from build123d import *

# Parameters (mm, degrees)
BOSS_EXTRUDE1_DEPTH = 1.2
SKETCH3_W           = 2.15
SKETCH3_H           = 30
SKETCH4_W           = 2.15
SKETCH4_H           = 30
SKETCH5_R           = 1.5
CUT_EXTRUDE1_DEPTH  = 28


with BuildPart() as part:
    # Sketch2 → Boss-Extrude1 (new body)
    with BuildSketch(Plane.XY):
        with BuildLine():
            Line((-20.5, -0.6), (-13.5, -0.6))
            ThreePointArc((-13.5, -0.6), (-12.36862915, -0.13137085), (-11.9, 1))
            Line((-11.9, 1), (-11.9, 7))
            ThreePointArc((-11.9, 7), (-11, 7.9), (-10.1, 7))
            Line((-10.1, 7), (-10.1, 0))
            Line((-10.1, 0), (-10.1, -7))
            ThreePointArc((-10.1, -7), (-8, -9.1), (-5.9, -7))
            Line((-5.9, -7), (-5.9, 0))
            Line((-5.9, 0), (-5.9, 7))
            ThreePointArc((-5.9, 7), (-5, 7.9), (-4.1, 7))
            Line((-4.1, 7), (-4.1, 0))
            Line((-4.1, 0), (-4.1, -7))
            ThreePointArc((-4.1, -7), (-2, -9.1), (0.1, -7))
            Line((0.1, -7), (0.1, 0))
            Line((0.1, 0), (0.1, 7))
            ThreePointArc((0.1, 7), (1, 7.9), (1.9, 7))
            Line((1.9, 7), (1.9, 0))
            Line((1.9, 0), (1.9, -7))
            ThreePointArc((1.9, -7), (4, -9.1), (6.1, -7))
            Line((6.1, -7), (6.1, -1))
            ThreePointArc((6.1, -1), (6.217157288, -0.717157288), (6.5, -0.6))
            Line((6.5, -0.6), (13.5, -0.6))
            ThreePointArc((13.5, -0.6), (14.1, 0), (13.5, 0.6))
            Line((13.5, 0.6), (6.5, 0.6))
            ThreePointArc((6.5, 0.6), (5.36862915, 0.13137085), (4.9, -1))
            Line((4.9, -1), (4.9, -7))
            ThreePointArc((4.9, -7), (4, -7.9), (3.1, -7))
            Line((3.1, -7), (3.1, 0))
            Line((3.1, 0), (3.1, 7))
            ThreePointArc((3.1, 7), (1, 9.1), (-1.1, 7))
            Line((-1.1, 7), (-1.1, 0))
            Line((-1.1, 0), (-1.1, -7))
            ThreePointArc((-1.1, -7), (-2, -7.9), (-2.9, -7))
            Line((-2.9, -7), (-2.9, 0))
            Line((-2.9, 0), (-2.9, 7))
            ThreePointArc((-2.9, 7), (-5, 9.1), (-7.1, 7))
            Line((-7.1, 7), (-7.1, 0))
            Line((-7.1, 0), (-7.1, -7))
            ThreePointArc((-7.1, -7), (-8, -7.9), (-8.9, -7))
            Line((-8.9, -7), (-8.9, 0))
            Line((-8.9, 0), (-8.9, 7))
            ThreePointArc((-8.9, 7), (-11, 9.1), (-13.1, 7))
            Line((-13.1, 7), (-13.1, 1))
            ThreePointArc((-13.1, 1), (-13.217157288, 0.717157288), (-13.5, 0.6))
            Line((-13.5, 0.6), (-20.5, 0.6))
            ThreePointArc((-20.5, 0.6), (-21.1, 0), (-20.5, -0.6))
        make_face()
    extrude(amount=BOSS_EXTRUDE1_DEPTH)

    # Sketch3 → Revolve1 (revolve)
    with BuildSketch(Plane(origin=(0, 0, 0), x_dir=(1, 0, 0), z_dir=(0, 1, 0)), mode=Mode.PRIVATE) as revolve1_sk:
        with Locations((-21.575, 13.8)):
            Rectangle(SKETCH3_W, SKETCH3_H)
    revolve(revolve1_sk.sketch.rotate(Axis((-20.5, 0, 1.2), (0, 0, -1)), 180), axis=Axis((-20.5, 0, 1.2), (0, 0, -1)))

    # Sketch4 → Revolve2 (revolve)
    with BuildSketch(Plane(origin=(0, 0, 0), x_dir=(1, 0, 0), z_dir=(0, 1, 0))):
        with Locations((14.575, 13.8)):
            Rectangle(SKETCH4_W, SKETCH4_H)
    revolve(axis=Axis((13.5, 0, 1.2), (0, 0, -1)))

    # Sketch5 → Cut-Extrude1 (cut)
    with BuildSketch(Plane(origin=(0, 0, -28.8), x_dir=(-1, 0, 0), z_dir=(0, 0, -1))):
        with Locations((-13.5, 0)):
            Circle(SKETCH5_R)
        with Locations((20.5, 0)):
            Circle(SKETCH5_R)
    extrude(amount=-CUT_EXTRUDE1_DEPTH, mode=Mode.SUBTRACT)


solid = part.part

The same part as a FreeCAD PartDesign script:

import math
import FreeCAD as App
import Part
import Sketcher
from FreeCAD import Vector


def add_polygon(sketch, points):
    """Adds a closed chain of lines whose ends are joined by coincident constraints."""
    first, n = sketch.GeometryCount, len(points)
    for a, b in zip(points, points[1:] + points[:1]):
        sketch.addGeometry(Part.LineSegment(App.Vector(*a, 0), App.Vector(*b, 0)), False)
    for i in range(n):
        sketch.addConstraint(Sketcher.Constraint("Coincident", first + i, 2, first + (i + 1) % n, 1))

doc = App.newDocument("Part")
params = doc.addObject("Spreadsheet::Sheet", "Params")
for row, (alias, value) in enumerate([
    ("sketch1_radius", "1.6 mm"),
    ("sketch1_radius2", "0.9 mm"),
    ("sketch1_radius3", "2.1 mm"),
    ("sketch1_width", "7 mm"),
    ("sketch1_height", "6 mm"),
    ("pad1_length", "1.2 mm"),
    ("sketch2_height", "30 mm"),
    ("sketch2_width", "2.15 mm"),
    ("revolution_angle", "360 deg"),
    ("sketch3_height", "30 mm"),
    ("sketch3_width", "2.15 mm"),
    ("revolution2_angle", "360 deg"),
    ("sketch4_diameter", "3 mm"),
    ("pocket1_length", "28 mm"),
], start=1):
    params.set(f"A{row}", alias)
    params.set(f"B{row}", "=" + value)
    params.setAlias(f"B{row}", alias)

body = doc.addObject("PartDesign::Body", "Body")

# Sketch on XY plane
sketch1 = body.newObject("Sketcher::SketchObject", "Sketch")
sketch1.AttachmentSupport = (doc.getObject("XY_Plane"), [""])
sketch1.MapMode = "FlatFace"
sketch1.addGeometry([
    Part.LineSegment(Vector(-20.5, -0.6, 0), Vector(-13.5, -0.6, 0)),  # 0
    Part.ArcOfCircle(Part.Circle(Vector(-13.5, 1, 0), Vector(0, 0, 1), 1.6), math.radians(-90), math.radians(0)),  # 1
    Part.LineSegment(Vector(-11.9, 1, 0), Vector(-11.9, 7, 0)),  # 2
    Part.ArcOfCircle(Part.Circle(Vector(-11, 7, 0), Vector(0, 0, 1), 0.9), math.radians(0), math.radians(180)),  # 3
    Part.LineSegment(Vector(-10.1, 7, 0), Vector(-10.1, -7, 0)),  # 4
    Part.ArcOfCircle(Part.Circle(Vector(-8, -7, 0), Vector(0, 0, 1), 2.1), math.radians(180), math.radians(360)),  # 5
    Part.LineSegment(Vector(-5.9, -7, 0), Vector(-5.9, 7, 0)),  # 6
    Part.ArcOfCircle(Part.Circle(Vector(-5, 7, 0), Vector(0, 0, 1), 0.9), math.radians(0), math.radians(180)),  # 7
    Part.LineSegment(Vector(-4.1, 7, 0), Vector(-4.1, -7, 0)),  # 8
    Part.ArcOfCircle(Part.Circle(Vector(-2, -7, 0), Vector(0, 0, 1), 2.1), math.radians(180), math.radians(360)),  # 9
    Part.LineSegment(Vector(0.1, -7, 0), Vector(0.1, 7, 0)),  # 10
    Part.ArcOfCircle(Part.Circle(Vector(1, 7, 0), Vector(0, 0, 1), 0.9), math.radians(0), math.radians(180)),  # 11
    Part.LineSegment(Vector(1.9, 7, 0), Vector(1.9, -7, 0)),  # 12
    Part.ArcOfCircle(Part.Circle(Vector(4, -7, 0), Vector(0, 0, 1), 2.1), math.radians(180), math.radians(360)),  # 13
    Part.LineSegment(Vector(6.1, -7, 0), Vector(6.1, -1, 0)),  # 14
    Part.ArcOfCircle(Part.Circle(Vector(6.5, -1, 0), Vector(0, 0, 1), 0.4), math.radians(90), math.radians(180)),  # 15
    Part.LineSegment(Vector(6.5, -0.6, 0), Vector(13.5, -0.6, 0)),  # 16
    Part.ArcOfCircle(Part.Circle(Vector(13.5, 0, 0), Vector(0, 0, 1), 0.6), math.radians(-90), math.radians(90)),  # 17
    Part.LineSegment(Vector(13.5, 0.6, 0), Vector(6.5, 0.6, 0)),  # 18
    Part.ArcOfCircle(Part.Circle(Vector(6.5, -1, 0), Vector(0, 0, 1), 1.6), math.radians(90), math.radians(180)),  # 19
    Part.LineSegment(Vector(4.9, -1, 0), Vector(4.9, -7, 0)),  # 20
    Part.ArcOfCircle(Part.Circle(Vector(4, -7, 0), Vector(0, 0, 1), 0.9), math.radians(180), math.radians(360)),  # 21
    Part.LineSegment(Vector(3.1, -7, 0), Vector(3.1, 7, 0)),  # 22
    Part.ArcOfCircle(Part.Circle(Vector(1, 7, 0), Vector(0, 0, 1), 2.1), math.radians(0), math.radians(180)),  # 23
    Part.LineSegment(Vector(-1.1, 7, 0), Vector(-1.1, -7, 0)),  # 24
    Part.ArcOfCircle(Part.Circle(Vector(-2, -7, 0), Vector(0, 0, 1), 0.9), math.radians(180), math.radians(360)),  # 25
    Part.LineSegment(Vector(-2.9, -7, 0), Vector(-2.9, 7, 0)),  # 26
    Part.ArcOfCircle(Part.Circle(Vector(-5, 7, 0), Vector(0, 0, 1), 2.1), math.radians(0), math.radians(180)),  # 27
    Part.LineSegment(Vector(-7.1, 7, 0), Vector(-7.1, -7, 0)),  # 28
    Part.ArcOfCircle(Part.Circle(Vector(-8, -7, 0), Vector(0, 0, 1), 0.9), math.radians(180), math.radians(360)),  # 29
    Part.LineSegment(Vector(-8.9, -7, 0), Vector(-8.9, 7, 0)),  # 30
    Part.ArcOfCircle(Part.Circle(Vector(-11, 7, 0), Vector(0, 0, 1), 2.1), math.radians(0), math.radians(180)),  # 31
    Part.LineSegment(Vector(-13.1, 7, 0), Vector(-13.1, 1, 0)),  # 32
    Part.ArcOfCircle(Part.Circle(Vector(-13.5, 1, 0), Vector(0, 0, 1), 0.4), math.radians(-90), math.radians(0)),  # 33
    Part.LineSegment(Vector(-13.5, 0.6, 0), Vector(-20.5, 0.6, 0)),  # 34
    Part.ArcOfCircle(Part.Circle(Vector(-20.5, 0, 0), Vector(0, 0, 1), 0.6), math.radians(90), math.radians(270)),  # 35
], False)
sketch1.addConstraint([
    Sketcher.Constraint("Tangent", 0, 2, 1, 1),
    Sketcher.Constraint("Tangent", 1, 2, 2, 1),
    Sketcher.Constraint("Tangent", 2, 2, 3, 2),
    Sketcher.Constraint("Tangent", 3, 1, 4, 1),
    Sketcher.Constraint("Tangent", 4, 2, 5, 1),
    Sketcher.Constraint("Tangent", 5, 2, 6, 1),
    Sketcher.Constraint("Tangent", 6, 2, 7, 2),
    Sketcher.Constraint("Tangent", 7, 1, 8, 1),
    Sketcher.Constraint("Tangent", 8, 2, 9, 1),
    Sketcher.Constraint("Tangent", 9, 2, 10, 1),
    Sketcher.Constraint("Tangent", 10, 2, 11, 2),
    Sketcher.Constraint("Tangent", 11, 1, 12, 1),
    Sketcher.Constraint("Tangent", 12, 2, 13, 1),
    Sketcher.Constraint("Tangent", 13, 2, 14, 1),
    Sketcher.Constraint("Tangent", 14, 2, 15, 2),
    Sketcher.Constraint("Tangent", 15, 1, 16, 1),
    Sketcher.Constraint("Tangent", 16, 2, 17, 1),
    Sketcher.Constraint("Tangent", 17, 2, 18, 1),
    Sketcher.Constraint("Tangent", 18, 2, 19, 1),
    Sketcher.Constraint("Tangent", 19, 2, 20, 1),
    Sketcher.Constraint("Tangent", 20, 2, 21, 2),
    Sketcher.Constraint("Tangent", 21, 1, 22, 1),
    Sketcher.Constraint("Tangent", 22, 2, 23, 1),
    Sketcher.Constraint("Tangent", 23, 2, 24, 1),
    Sketcher.Constraint("Tangent", 24, 2, 25, 2),
    Sketcher.Constraint("Tangent", 25, 1, 26, 1),
    Sketcher.Constraint("Tangent", 26, 2, 27, 1),
    Sketcher.Constraint("Tangent", 27, 2, 28, 1),
    Sketcher.Constraint("Tangent", 28, 2, 29, 2),
    Sketcher.Constraint("Tangent", 29, 1, 30, 1),
    Sketcher.Constraint("Tangent", 30, 2, 31, 1),
    Sketcher.Constraint("Tangent", 31, 2, 32, 1),
    Sketcher.Constraint("Tangent", 32, 2, 33, 2),
    Sketcher.Constraint("Tangent", 33, 1, 34, 1),
    Sketcher.Constraint("Tangent", 34, 2, 35, 1),
    Sketcher.Constraint("Tangent", 35, 2, 0, 1),
    Sketcher.Constraint("Horizontal", 0),
    Sketcher.Constraint("Vertical", 2),
    Sketcher.Constraint("Vertical", 4),
    Sketcher.Constraint("Vertical", 6),
    Sketcher.Constraint("Vertical", 8),
    Sketcher.Constraint("Vertical", 10),
    Sketcher.Constraint("Vertical", 12),
    Sketcher.Constraint("Vertical", 14),
    Sketcher.Constraint("Horizontal", 16),
    Sketcher.Constraint("Horizontal", 18),
    Sketcher.Constraint("Vertical", 20),
    Sketcher.Constraint("Vertical", 22),
    Sketcher.Constraint("Vertical", 24),
    Sketcher.Constraint("Vertical", 26),
    Sketcher.Constraint("Vertical", 28),
    Sketcher.Constraint("Vertical", 30),
    Sketcher.Constraint("Vertical", 32),
    Sketcher.Constraint("Horizontal", 34),
    Sketcher.Constraint("Coincident", 19, 3, 15, 3),
    Sketcher.Constraint("Coincident", 21, 3, 13, 3),
    Sketcher.Constraint("Coincident", 23, 3, 11, 3),
    Sketcher.Constraint("Coincident", 25, 3, 9, 3),
    Sketcher.Constraint("Coincident", 27, 3, 7, 3),
    Sketcher.Constraint("Coincident", 29, 3, 5, 3),
    Sketcher.Constraint("Coincident", 31, 3, 3, 3),
    Sketcher.Constraint("Coincident", 33, 3, 1, 3),
    Sketcher.Constraint("Equal", 3, 7),
    Sketcher.Constraint("Equal", 5, 9),
    Sketcher.Constraint("Equal", 7, 11),
    Sketcher.Constraint("Equal", 9, 13),
    Sketcher.Constraint("Equal", 1, 19),
    Sketcher.Constraint("Equal", 11, 21),
    Sketcher.Constraint("Symmetric", 0, 2, 17, 2, -1, 1),
    Sketcher.Constraint("PointOnObject", 17, 3, -1),
    Sketcher.Constraint("Horizontal", 3, 3, 7, 3),
    Sketcher.Constraint("Horizontal", 5, 3, 9, 3),
    Sketcher.Constraint("Horizontal", 7, 3, 11, 3),
    Sketcher.Constraint("Horizontal", 9, 3, 13, 3),
    Sketcher.Constraint("Equal", 0, 16),
    Sketcher.Constraint("Equal", 2, 14),
    Sketcher.Constraint("Radius", 1, 1.6),
    Sketcher.Constraint("Radius", 3, 0.9),
    Sketcher.Constraint("Radius", 5, 2.1),
    Sketcher.Constraint("DistanceX", 0, 1, 0, 2, 7.0),
    Sketcher.Constraint("DistanceY", 2, 1, 2, 2, 6.0),
])
sketch1.setExpression("Constraints[76]", "Params.sketch1_radius")
sketch1.setExpression("Constraints[77]", "Params.sketch1_radius2")
sketch1.setExpression("Constraints[78]", "Params.sketch1_radius3")
sketch1.setExpression("Constraints[79]", "Params.sketch1_width")
sketch1.setExpression("Constraints[80]", "Params.sketch1_height")
pad1 = body.newObject("PartDesign::Pad", "Pad")
pad1.Profile = sketch1
pad1.setExpression("Length", "Params.pad1_length")

# Sketch on XZ plane
sketch2 = body.newObject("Sketcher::SketchObject", "Sketch001")
sketch2.AttachmentSupport = (doc.getObject("XZ_Plane"), [""])
sketch2.MapMode = "FlatFace"
add_polygon(sketch2, [(-22.6, -28.8), (-22.6, 1.2), (-20.5, 1.2), (-20.5, -28.8)])  # lines 0-3
sketch2.addGeometry(Part.LineSegment(Vector(-20.5, 1.2, 0), Vector(-20.5, -28.8, 0)), True)  # axis
sketch2.addConstraint([
    Sketcher.Constraint("Vertical", 0),
    Sketcher.Constraint("Horizontal", 1),
    Sketcher.Constraint("Vertical", 2),
    Sketcher.Constraint("Horizontal", 3),
    Sketcher.Constraint("Vertical", 4),
    Sketcher.Constraint("Coincident", 4, 1, 1, 2),
    Sketcher.Constraint("Horizontal", 3, 2, 4, 2),
    Sketcher.Constraint("DistanceY", 0, 1, 0, 2, 30.0),
    Sketcher.Constraint("DistanceX", 1, 1, 1, 2, 2.15),
    Sketcher.Constraint("DistanceY", -1, 1, 0, 2, 1.2),
    Sketcher.Constraint("DistanceX", 1, 2, -1, 1, 20.5),
])
sketch2.setExpression("Constraints[11]", "Params.sketch2_height")
sketch2.setExpression("Constraints[12]", "Params.sketch2_width")
revolution = body.newObject("PartDesign::Revolution", "Revolution")
revolution.Profile = sketch2
revolution.ReferenceAxis = (sketch2, ["Axis0"])
revolution.setExpression("Angle", "Params.revolution_angle")

# Sketch on XZ plane
sketch3 = body.newObject("Sketcher::SketchObject", "Sketch002")
sketch3.AttachmentSupport = (doc.getObject("XZ_Plane"), [""])
sketch3.MapMode = "FlatFace"
add_polygon(sketch3, [(13.5, -28.8), (13.5, 1.2), (15.7, 1.2), (15.7, -28.8)])  # lines 0-3
sketch3.addGeometry(Part.LineSegment(Vector(13.5, 1.2, 0), Vector(13.5, -28.8, 0)), True)  # axis
sketch3.addConstraint([
    Sketcher.Constraint("Vertical", 0),
    Sketcher.Constraint("Horizontal", 1),
    Sketcher.Constraint("Vertical", 2),
    Sketcher.Constraint("Horizontal", 3),
    Sketcher.Constraint("Vertical", 4),
    Sketcher.Constraint("Coincident", 4, 1, 0, 2),
    Sketcher.Constraint("Horizontal", 2, 2, 4, 2),
    Sketcher.Constraint("DistanceY", 0, 1, 0, 2, 30.0),
    Sketcher.Constraint("DistanceX", 1, 1, 1, 2, 2.15),
    Sketcher.Constraint("DistanceX", -1, 1, 0, 2, 13.5),
    Sketcher.Constraint("DistanceY", -1, 1, 0, 2, 1.2),
])
sketch3.setExpression("Constraints[11]", "Params.sketch3_height")
sketch3.setExpression("Constraints[12]", "Params.sketch3_width")
revolution2 = body.newObject("PartDesign::Revolution", "Revolution001")
revolution2.Profile = sketch3
revolution2.ReferenceAxis = (sketch3, ["Axis0"])
revolution2.setExpression("Angle", "Params.revolution2_angle")

# Sketch on XY plane
sketch4 = body.newObject("Sketcher::SketchObject", "Sketch003")
sketch4.AttachmentSupport = (doc.getObject("XY_Plane"), [""])
sketch4.MapMode = "FlatFace"
sketch4.AttachmentOffset = App.Placement(Vector(0, 0, -28.8), App.Rotation())
sketch4.addGeometry([
    Part.Circle(Vector(13.5, 0, 0), Vector(0, 0, 1), 1.5),
    Part.Circle(Vector(-20.5, 0, 0), Vector(0, 0, 1), 1.5),
], False)
sketch4.addConstraint([
    Sketcher.Constraint("Equal", 0, 1),
    Sketcher.Constraint("PointOnObject", 0, 3, -1),
    Sketcher.Constraint("PointOnObject", 1, 3, -1),
    Sketcher.Constraint("Diameter", 0, 3.0),
    Sketcher.Constraint("DistanceX", 1, 3, 0, 3, 34.0),
    Sketcher.Constraint("DistanceX", -1, 1, 0, 3, 13.5),
])
sketch4.setExpression("Constraints[3]", "Params.sketch4_diameter")
pocket1 = body.newObject("PartDesign::Pocket", "Pocket")
pocket1.Profile = sketch4
pocket1.setExpression("Length", "Params.pocket1_length")
pocket1.Reversed = True

doc.recompute()
